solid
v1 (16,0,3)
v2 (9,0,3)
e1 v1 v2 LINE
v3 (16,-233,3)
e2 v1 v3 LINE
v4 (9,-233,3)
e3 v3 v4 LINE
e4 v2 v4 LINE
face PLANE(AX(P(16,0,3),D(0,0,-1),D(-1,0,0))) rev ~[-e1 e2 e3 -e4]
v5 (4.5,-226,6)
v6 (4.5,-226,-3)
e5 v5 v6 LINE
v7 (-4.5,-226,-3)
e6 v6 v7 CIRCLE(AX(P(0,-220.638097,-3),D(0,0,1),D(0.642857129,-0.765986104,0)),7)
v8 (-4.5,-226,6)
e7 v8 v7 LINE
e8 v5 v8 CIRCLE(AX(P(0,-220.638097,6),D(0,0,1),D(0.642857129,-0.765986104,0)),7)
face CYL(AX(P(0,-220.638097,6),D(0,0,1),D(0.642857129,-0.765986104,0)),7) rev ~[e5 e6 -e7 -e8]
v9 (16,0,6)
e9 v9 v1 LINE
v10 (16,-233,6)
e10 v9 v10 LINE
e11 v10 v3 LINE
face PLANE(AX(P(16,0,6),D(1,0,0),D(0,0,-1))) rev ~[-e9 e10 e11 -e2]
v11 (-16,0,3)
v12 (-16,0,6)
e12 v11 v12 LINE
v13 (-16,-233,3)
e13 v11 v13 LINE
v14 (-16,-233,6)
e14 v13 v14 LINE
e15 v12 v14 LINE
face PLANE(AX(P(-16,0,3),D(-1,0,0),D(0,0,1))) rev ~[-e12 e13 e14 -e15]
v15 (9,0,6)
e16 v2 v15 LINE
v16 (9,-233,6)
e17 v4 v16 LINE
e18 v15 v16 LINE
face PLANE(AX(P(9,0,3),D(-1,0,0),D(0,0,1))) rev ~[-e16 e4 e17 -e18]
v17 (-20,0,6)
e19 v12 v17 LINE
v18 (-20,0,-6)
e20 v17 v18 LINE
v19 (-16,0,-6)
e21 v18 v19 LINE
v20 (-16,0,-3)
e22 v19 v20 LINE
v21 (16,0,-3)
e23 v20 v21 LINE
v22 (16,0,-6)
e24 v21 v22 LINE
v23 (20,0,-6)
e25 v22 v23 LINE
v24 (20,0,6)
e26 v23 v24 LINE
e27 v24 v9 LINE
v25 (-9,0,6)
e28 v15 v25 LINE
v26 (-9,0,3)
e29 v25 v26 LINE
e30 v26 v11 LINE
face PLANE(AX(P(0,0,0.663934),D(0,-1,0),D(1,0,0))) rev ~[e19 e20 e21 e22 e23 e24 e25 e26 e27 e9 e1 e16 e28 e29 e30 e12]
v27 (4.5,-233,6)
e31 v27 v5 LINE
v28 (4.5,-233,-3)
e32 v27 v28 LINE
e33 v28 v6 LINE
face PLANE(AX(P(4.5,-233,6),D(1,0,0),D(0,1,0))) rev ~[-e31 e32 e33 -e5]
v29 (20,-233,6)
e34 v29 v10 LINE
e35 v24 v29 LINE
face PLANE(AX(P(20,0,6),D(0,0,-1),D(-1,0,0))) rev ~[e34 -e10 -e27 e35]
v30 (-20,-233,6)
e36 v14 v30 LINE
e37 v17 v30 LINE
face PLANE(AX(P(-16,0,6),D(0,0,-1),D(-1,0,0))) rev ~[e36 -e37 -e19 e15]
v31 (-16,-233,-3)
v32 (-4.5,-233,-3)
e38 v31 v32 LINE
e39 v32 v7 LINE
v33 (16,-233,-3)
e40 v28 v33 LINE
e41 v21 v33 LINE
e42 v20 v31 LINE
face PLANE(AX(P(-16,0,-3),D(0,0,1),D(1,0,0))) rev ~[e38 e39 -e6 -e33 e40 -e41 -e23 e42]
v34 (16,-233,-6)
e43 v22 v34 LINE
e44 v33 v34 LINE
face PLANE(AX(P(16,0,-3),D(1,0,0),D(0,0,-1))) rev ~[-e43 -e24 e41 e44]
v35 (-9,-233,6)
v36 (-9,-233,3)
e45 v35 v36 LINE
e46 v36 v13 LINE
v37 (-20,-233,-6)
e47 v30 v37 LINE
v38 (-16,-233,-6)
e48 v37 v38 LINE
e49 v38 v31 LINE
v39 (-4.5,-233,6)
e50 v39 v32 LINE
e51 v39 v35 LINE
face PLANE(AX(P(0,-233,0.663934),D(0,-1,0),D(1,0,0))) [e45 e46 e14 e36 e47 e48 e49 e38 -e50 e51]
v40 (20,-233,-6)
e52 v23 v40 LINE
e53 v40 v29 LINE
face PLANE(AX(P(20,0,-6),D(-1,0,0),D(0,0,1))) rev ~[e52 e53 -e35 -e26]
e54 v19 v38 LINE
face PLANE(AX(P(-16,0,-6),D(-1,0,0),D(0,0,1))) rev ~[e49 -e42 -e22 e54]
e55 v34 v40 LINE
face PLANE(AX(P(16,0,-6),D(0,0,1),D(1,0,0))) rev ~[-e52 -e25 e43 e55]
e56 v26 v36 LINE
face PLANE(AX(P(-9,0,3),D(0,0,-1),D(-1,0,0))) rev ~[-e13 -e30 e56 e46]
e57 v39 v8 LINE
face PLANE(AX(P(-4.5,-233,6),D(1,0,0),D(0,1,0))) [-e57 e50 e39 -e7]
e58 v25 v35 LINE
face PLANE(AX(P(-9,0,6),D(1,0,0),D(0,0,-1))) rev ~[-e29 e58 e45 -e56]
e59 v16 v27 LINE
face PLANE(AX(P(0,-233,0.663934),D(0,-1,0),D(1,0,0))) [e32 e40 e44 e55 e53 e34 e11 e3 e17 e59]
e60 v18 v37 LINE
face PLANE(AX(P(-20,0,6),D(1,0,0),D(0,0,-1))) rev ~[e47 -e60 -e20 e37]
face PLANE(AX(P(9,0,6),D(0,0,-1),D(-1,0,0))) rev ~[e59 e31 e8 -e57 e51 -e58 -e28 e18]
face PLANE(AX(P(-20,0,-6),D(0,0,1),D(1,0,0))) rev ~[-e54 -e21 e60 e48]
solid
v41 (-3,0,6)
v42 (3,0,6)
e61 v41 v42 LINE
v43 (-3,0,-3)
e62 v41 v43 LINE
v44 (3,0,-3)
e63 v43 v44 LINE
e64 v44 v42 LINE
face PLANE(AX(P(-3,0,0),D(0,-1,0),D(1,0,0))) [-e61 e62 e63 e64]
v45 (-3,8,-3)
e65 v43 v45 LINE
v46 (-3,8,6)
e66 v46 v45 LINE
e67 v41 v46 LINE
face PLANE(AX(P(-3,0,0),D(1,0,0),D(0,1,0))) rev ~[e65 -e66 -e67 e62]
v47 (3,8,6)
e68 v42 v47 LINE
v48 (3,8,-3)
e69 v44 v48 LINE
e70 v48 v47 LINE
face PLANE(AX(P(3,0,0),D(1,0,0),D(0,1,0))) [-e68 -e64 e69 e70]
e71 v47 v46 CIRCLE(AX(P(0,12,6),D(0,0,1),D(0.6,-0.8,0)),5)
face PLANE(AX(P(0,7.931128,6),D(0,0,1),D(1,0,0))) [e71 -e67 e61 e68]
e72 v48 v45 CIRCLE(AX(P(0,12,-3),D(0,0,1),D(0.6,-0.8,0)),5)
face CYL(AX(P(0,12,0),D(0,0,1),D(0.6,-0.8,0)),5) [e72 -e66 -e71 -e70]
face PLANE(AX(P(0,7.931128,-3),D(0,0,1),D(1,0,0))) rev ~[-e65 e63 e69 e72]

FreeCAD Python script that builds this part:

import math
import FreeCAD as App
import Part
import Sketcher

V = App.Vector


def add_polygon(sketch, points):
    """Adds a closed chain of lines whose ends are joined by coincident constraints."""
    first, n = sketch.GeometryCount, len(points)
    for a, b in zip(points, points[1:] + points[:1]):
        sketch.addGeometry(Part.LineSegment(App.Vector(*a, 0), App.Vector(*b, 0)), False)
    for i in range(n):
        sketch.addConstraint(Sketcher.Constraint("Coincident", first + i, 2, first + (i + 1) % n, 1))

doc = App.newDocument("Part")
params = doc.addObject("Spreadsheet::Sheet", "Params")
for row, (alias, value) in enumerate([
    ("sketch1_width", "4 mm"),
    ("sketch1_width2", "32 mm"),
    ("sketch1_width3", "7 mm"),
    ("sketch1_height", "12 mm"),
    ("sketch1_height2", "3 mm"),
    ("pad1_length", "233 mm"),
    ("sketch2_radius", "7 mm"),
    ("sketch2_width", "9 mm"),
    ("sketch2_height", "7 mm"),
    ("sketch3_radius", "5 mm"),
    ("sketch3_width", "6 mm"),
    ("sketch3_height", "8 mm"),
    ("pad2_length", "6 mm"),
    ("pad2_length2", "3 mm"),
], start=1):
    params.set(f"A{row}", alias)
    params.set(f"B{row}", "=" + value)
    params.setAlias(f"B{row}", alias)

body = doc.addObject("PartDesign::Body", "Body")

# Sketch on XZ plane
sketch1 = body.newObject("Sketcher::SketchObject", "Sketch")
sketch1.AttachmentSupport = (doc.getObject("XZ_Plane"), [""])
sketch1.MapMode = "FlatFace"
add_polygon(sketch1, [(-20, 6), (-20, -6), (-16, -6), (-16, -3), (16, -3), (16, -6), (20, -6), (20, 6), (16, 6), (16, 3), (9, 3), (9, 6), (-9, 6), (-9, 3), (-16, 3), (-16, 6)])  # lines 0-15
sketch1.addConstraint([
    Sketcher.Constraint("Vertical", 0),
    Sketcher.Constraint("Horizontal", 1),
    Sketcher.Constraint("Vertical", 2),
    Sketcher.Constraint("Horizontal", 3),
    Sketcher.Constraint("Vertical", 4),
    Sketcher.Constraint("Horizontal", 5),
    Sketcher.Constraint("Vertical", 6),
    Sketcher.Constraint("Horizontal", 7),
    Sketcher.Constraint("Vertical", 8),
    Sketcher.Constraint("Horizontal", 9),
    Sketcher.Constraint("Vertical", 10),
    Sketcher.Constraint("Horizontal", 11),
    Sketcher.Constraint("Vertical", 12),
    Sketcher.Constraint("Horizontal", 13),
    Sketcher.Constraint("Vertical", 14),
    Sketcher.Constraint("Horizontal", 15),
    Sketcher.Constraint("Symmetric", 0, 2, 6, 2, -1, 1),
    Sketcher.Constraint("Symmetric", 2, 2, 8, 2, -1, 1),
    Sketcher.Constraint("Symmetric", 3, 2, 13, 2, -1, 1),
    Sketcher.Constraint("Symmetric", 1, 2, 4, 2, -2),
    Sketcher.Constraint("Horizontal", 7, 2, 10, 2),
    Sketcher.Constraint("Horizontal", 11, 2, 14, 2),
    Sketcher.Constraint("Equal", 9, 13),
    Sketcher.Constraint("DistanceX", 1, 1, 1, 2, 4.0),
    Sketcher.Constraint("DistanceX", 3, 1, 3, 2, 32.0),
    Sketcher.Constraint("DistanceX", 9, 2, 9, 1, 7.0),
    Sketcher.Constraint("DistanceY", 0, 2, 0, 1, 12.0),
    Sketcher.Constraint("DistanceY", 2, 1, 2, 2, 3.0),
])
sketch1.setExpression("Constraints[39]", "Params.sketch1_width")
sketch1.setExpression("Constraints[40]", "Params.sketch1_width2")
sketch1.setExpression("Constraints[41]", "Params.sketch1_width3")
sketch1.setExpression("Constraints[42]", "Params.sketch1_height")
sketch1.setExpression("Constraints[43]", "Params.sketch1_height2")
pad1 = body.newObject("PartDesign::Pad", "Pad")
pad1.Profile = sketch1
pad1.setExpression("Length", "Params.pad1_length")

# Sketch on XY plane
sketch2 = body.newObject("Sketcher::SketchObject", "Sketch001")
sketch2.AttachmentSupport = (doc.getObject("XY_Plane"), [""])
sketch2.MapMode = "FlatFace"
sketch2.AttachmentOffset = App.Placement(V(0, 0, 6), App.Rotation())
sketch2.addGeometry([
    Part.LineSegment(V(-4.5, -233, 0), V(4.5, -233, 0)),
    Part.LineSegment(V(4.5, -233, 0), V(4.5, -226, 0)),
    Part.ArcOfCircle(Part.Circle(V(0, -220.638097, 0), V(0, 0, 1), 7), math.radians(-49.9948), math.radians(229.9948)),
    Part.LineSegment(V(-4.5, -226, 0), V(-4.5, -233, 0)),
], False)
sketch2.addConstraint([
    Sketcher.Constraint("Coincident", 0, 2, 1, 1),
    Sketcher.Constraint("Coincident", 1, 2, 2, 1),
    Sketcher.Constraint("Coincident", 2, 2, 3, 1),
    Sketcher.Constraint("Coincident", 3, 2, 0, 1),
    Sketcher.Constraint("Horizontal", 0),
    Sketcher.Constraint("Vertical", 1),
    Sketcher.Constraint("Vertical", 3),
    Sketcher.Constraint("Symmetric", 1, 2, 2, 2, -2),
    Sketcher.Constraint("Radius", 2, 7.0),
    Sketcher.Constraint("DistanceX", 0, 1, 0, 2, 9.0),
    Sketcher.Constraint("DistanceY", 1, 1, 1, 2, 7.0),
    Sketcher.Constraint("DistanceY", 0, 2, -1, 1, 233.0),
])
sketch2.setExpression("Constraints[8]", "Params.sketch2_radius")
sketch2.setExpression("Constraints[9]", "Params.sketch2_width")
sketch2.setExpression("Constraints[10]", "Params.sketch2_height")
pocket1 = body.newObject("PartDesign::Pocket", "Pocket")
pocket1.Profile = sketch2
pocket1.Type = "ThroughAll"
body2 = doc.addObject("PartDesign::Body", "Body001")

# Sketch on XY plane
sketch3 = body2.newObject("Sketcher::SketchObject", "Sketch002")
sketch3.AttachmentSupport = (doc.getObject("XY_Plane001"), [""])
sketch3.MapMode = "FlatFace"
sketch3.addGeometry([
    Part.LineSegment(V(-3, 0, 0), V(3, 0, 0)),
    Part.LineSegment(V(3, 0, 0), V(3, 8, 0)),
    Part.ArcOfCircle(Part.Circle(V(0, 12, 0), V(0, 0, 1), 5), math.radians(-53.130102), math.radians(233.130102)),
    Part.LineSegment(V(-3, 8, 0), V(-3, 0, 0)),
], False)
sketch3.addConstraint([
    Sketcher.Constraint("Coincident", 0, 2, 1, 1),
    Sketcher.Constraint("Coincident", 1, 2, 2, 1),
    Sketcher.Constraint("Coincident", 2, 2, 3, 1),
    Sketcher.Constraint("Coincident", 3, 2, 0, 1),
    Sketcher.Constraint("Horizontal", 0),
    Sketcher.Constraint("Vertical", 1),
    Sketcher.Constraint("Vertical", 3),
    Sketcher.Constraint("Symmetric", 0, 2, 3, 2, -1, 1),
    Sketcher.Constraint("PointOnObject", 2, 3, -2),
    Sketcher.Constraint("Radius", 2, 5.0),
    Sketcher.Constraint("DistanceX", 0, 1, 0, 2, 6.0),
    Sketcher.Constraint("DistanceY", 1, 1, 1, 2, 8.0),
])
sketch3.setExpression("Constraints[9]", "Params.sketch3_radius")
sketch3.setExpression("Constraints[10]", "Params.sketch3_width")
sketch3.setExpression("Constraints[11]", "Params.sketch3_height")
pad2 = body2.newObject("PartDesign::Pad", "Pad001")
pad2.Profile = sketch3
pad2.Type = "TwoLengths"
pad2.setExpression("Length", "Params.pad2_length")
pad2.setExpression("Length2", "Params.pad2_length2")

doc.recompute()
